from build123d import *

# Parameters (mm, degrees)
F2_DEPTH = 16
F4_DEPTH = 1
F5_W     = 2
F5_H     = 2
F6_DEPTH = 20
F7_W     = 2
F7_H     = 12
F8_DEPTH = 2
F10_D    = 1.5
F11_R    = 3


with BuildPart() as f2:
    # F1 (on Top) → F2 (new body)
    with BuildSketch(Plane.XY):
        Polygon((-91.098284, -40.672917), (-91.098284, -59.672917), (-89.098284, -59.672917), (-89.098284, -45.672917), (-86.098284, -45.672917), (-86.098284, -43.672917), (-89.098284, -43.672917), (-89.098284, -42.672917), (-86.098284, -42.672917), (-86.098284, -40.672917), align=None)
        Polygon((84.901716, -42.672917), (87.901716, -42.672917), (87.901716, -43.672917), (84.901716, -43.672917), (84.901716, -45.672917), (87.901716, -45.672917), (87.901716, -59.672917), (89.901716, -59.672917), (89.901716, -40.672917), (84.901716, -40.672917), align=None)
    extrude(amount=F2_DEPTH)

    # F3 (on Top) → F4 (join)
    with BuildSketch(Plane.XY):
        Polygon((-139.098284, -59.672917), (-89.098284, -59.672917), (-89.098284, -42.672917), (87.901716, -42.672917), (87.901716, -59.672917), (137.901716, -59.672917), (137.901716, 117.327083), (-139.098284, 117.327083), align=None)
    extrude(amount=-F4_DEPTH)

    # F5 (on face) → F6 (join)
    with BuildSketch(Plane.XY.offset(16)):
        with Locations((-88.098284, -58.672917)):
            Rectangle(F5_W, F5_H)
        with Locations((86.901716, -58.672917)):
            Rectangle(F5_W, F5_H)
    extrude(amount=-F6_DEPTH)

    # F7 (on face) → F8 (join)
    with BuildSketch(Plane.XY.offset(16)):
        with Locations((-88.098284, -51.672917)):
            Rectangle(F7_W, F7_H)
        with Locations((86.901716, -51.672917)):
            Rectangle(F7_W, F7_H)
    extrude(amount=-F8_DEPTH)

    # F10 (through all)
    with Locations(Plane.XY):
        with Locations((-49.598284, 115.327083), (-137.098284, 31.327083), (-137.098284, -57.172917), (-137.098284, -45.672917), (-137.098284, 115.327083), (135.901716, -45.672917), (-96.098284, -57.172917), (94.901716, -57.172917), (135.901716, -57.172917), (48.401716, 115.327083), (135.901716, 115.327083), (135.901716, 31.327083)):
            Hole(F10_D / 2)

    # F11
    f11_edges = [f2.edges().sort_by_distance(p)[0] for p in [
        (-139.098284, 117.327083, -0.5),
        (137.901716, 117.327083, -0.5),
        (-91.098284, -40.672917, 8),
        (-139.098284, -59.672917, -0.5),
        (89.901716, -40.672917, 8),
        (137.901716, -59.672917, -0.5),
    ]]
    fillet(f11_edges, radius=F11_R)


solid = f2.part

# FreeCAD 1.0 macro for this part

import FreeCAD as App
import Part
import Sketcher


def edges_at(feature, points):
    """Names of the edges that pass closest to the given points."""
    edges = feature.Shape.Edges
    near = lambda p: min(range(len(edges)), key=lambda i: edges[i].distToShape(Part.Vertex(*p))[0])
    return sorted({f"Edge{near(p) + 1}" for p in points})


def add_polygon(sketch, points):
    """Adds a closed chain of lines whose ends are joined by coincident constraints."""
    first, n = sketch.GeometryCount, len(points)
    for a, b in zip(points, points[1:] + points[:1]):
        sketch.addGeometry(Part.LineSegment(App.Vector(*a, 0), App.Vector(*b, 0)), False)
    for i in range(n):
        sketch.addConstraint(Sketcher.Constraint("Coincident", first + i, 2, first + (i + 1) % n, 1))

doc = App.newDocument("Part")
params = doc.addObject("Spreadsheet::Sheet", "Params")
for row, (alias, value) in enumerate([
    ("sketch1_width", "2 mm"),
    ("sketch1_width2", "3 mm"),
    ("sketch1_height", "19 mm"),
    ("sketch1_height2", "14 mm"),
    ("pad1_length", "16 mm"),
    ("sketch2_width", "50 mm"),
    ("sketch2_width2", "177 mm"),
    ("sketch2_height", "17 mm"),
    ("pad2_length", "1 mm"),
    ("sketch3_width", "2 mm"),
    ("pad3_length", "20 mm"),
    ("sketch4_width", "2 mm"),
    ("sketch4_height", "12 mm"),
    ("pad4_length", "2 mm"),
    ("sketch5_diameter", "1.5 mm"),
    ("hole_diameter", "1.5 mm"),
    ("fillet_radius", "3 mm"),
], start=1):
    params.set(f"A{row}", alias)
    params.set(f"B{row}", "=" + value)
    params.setAlias(f"B{row}", alias)

body = doc.addObject("PartDesign::Body", "Body")
body.AllowCompound = True

sketch1 = doc.addObject("Sketcher::SketchObject", "Sketch")
body.addObject(sketch1)
sketch1.AttachmentSupport = (doc.XY_Plane, [""])
sketch1.MapMode = "FlatFace"
add_polygon(sketch1, [(-91.1, -40.7), (-91.1, -59.7), (-89.1, -59.7), (-89.1, -45.7), (-86.1, -45.7), (-86.1, -43.7), (-89.1, -43.7), (-89.1, -42.7), (-86.1, -42.7), (-86.1, -40.7)])
add_polygon(sketch1, [(84.9, -42.7), (87.9, -42.7), (87.9, -43.7), (84.9, -43.7), (84.9, -45.7), (87.9, -45.7), (87.9, -59.7), (89.9, -59.7), (89.9, -40.7), (84.9, -40.7)])
sketch1.addConstraint([
    Sketcher.Constraint("Vertical", 0),
    Sketcher.Constraint("Horizontal", 1),
    Sketcher.Constraint("Vertical", 2),
    Sketcher.Constraint("Horizontal", 3),
    Sketcher.Constraint("Vertical", 4),
    Sketcher.Constraint("Horizontal", 5),
    Sketcher.Constraint("Vertical", 6),
    Sketcher.Constraint("Horizontal", 7),
    Sketcher.Constraint("Vertical", 8),
    Sketcher.Constraint("Horizontal", 9),
    Sketcher.Constraint("Horizontal", 10),
    Sketcher.Constraint("Vertical", 11),
    Sketcher.Constraint("Horizontal", 12),
    Sketcher.Constraint("Vertical", 13),
    Sketcher.Constraint("Horizontal", 14),
    Sketcher.Constraint("Vertical", 15),
    Sketcher.Constraint("Horizontal", 16),
    Sketcher.Constraint("Vertical", 17),
    Sketcher.Constraint("Horizontal", 18),
    Sketcher.Constraint("Vertical", 19),
    Sketcher.Constraint("Horizontal", 7, 2, 10, 2),
    Sketcher.Constraint("Horizontal", 5, 2, 11, 2),
    Sketcher.Constraint("Horizontal", 3, 2, 13, 2),
    Sketcher.Constraint("Horizontal", 1, 2, 15, 2),
    Sketcher.Constraint("Horizontal", 9, 2, 17, 2),
    Sketcher.Constraint("Vertical", 2, 2, 5, 2),
    Sketcher.Constraint("Vertical", 4, 2, 7, 2),
    Sketcher.Constraint("Vertical", 11, 2, 14, 2),
    Sketcher.Constraint("Vertical", 13, 2, 18, 2),
    Sketcher.Constraint("Equal", 7, 10),
    Sketcher.Constraint("Equal", 1, 16),
    Sketcher.Constraint("Equal", 16, 4),
    Sketcher.Constraint("Equal", 4, 8),
    Sketcher.Constraint("DistanceX", 1, 1, 1, 2, 2.0),
    Sketcher.Constraint("DistanceX", 3, 1, 3, 2, 3.0),
    Sketcher.Constraint("DistanceY", 0, 2, 0, 1, 19.0),
    Sketcher.Constraint("DistanceY", 2, 1, 2, 2, 14.0),
    Sketcher.Constraint("DistanceX", 7, 2, 10, 2, 174.0),
    Sketcher.Constraint("DistanceX", 0, 2, -1, 1, 91.098284),
    Sketcher.Constraint("DistanceY", 0, 2, -1, 1, 59.672917),
])
sketch1.setExpression("Constraints[53]", "Params.sketch1_width")
sketch1.setExpression("Constraints[54]", "Params.sketch1_width2")
sketch1.setExpression("Constraints[55]", "Params.sketch1_height")
sketch1.setExpression("Constraints[56]", "Params.sketch1_height2")
pad1 = doc.addObject("PartDesign::Pad", "Pad")
body.addObject(pad1)
pad1.Profile = sketch1
pad1.setExpression("Length", "Params.pad1_length")

sketch2 = doc.addObject("Sketcher::SketchObject", "Sketch001")
body.addObject(sketch2)
sketch2.AttachmentSupport = (doc.XY_Plane, [""])
sketch2.MapMode = "FlatFace"
add_polygon(sketch2, [(-139, -60), (-89, -60), (-89, -43), (88, -43), (88, -60), (138, -60), (138, 117), (-139, 117)])
sketch2.addConstraint([
    Sketcher.Constraint("Horizontal", 0),
    Sketcher.Constraint("Vertical", 1),
    Sketcher.Constraint("Horizontal", 2),
    Sketcher.Constraint("Vertical", 3),
    Sketcher.Constraint("Horizontal", 4),
    Sketcher.Constraint("Vertical", 5),
    Sketcher.Constraint("Horizontal", 6),
    Sketcher.Constraint("Vertical", 7),
    Sketcher.Constraint("Horizontal", 0, 2, 3, 2),
    Sketcher.Constraint("Equal", 0, 4),
    Sketcher.Constraint("Equal", 2, 5),
    Sketcher.Constraint("DistanceX", 0, 1, 0, 2, 50.0),
    Sketcher.Constraint("DistanceX", 2, 1, 2, 2, 177.0),
    Sketcher.Constraint("DistanceY", 1, 1, 1, 2, 17.0),
    Sketcher.Constraint("DistanceX", 0, 2, -1, 1, 89.098284),
    Sketcher.Constraint("DistanceY", 0, 2, -1, 1, 59.672917),
])
sketch2.setExpression("Constraints[19]", "Params.sketch2_width")
sketch2.setExpression("Constraints[20]", "Params.sketch2_width2")
sketch2.setExpression("Constraints[21]", "Params.sketch2_height")
pad2 = doc.addObject("PartDesign::Pad", "Pad001")
body.addObject(pad2)
pad2.Profile = sketch2
pad2.setExpression("Length", "Params.pad2_length")
pad2.Reversed = True

sketch3 = doc.addObject("Sketcher::SketchObject", "Sketch002")
body.addObject(sketch3)
sketch3.AttachmentSupport = (doc.XY_Plane, [""])
sketch3.MapMode = "FlatFace"
sketch3.AttachmentOffset = App.Placement(App.Vector(0, 0, 16), App.Rotation())
add_polygon(sketch3, [(-89.1, -57.7), (-89.1, -59.7), (-87.1, -59.7), (-87.1, -57.7)])
add_polygon(sketch3, [(85.9, -57.7), (85.9, -59.7), (87.9, -59.7), (87.9, -57.7)])
sketch3.addConstraint([
    Sketcher.Constraint("Vertical", 0),
    Sketcher.Constraint("Horizontal", 1),
    Sketcher.Constraint("Vertical", 2),
    Sketcher.Constraint("Horizontal", 3),
    Sketcher.Constraint("Vertical", 4),
    Sketcher.Constraint("Horizontal", 5),
    Sketcher.Constraint("Vertical", 6),
    Sketcher.Constraint("Horizontal", 7),
    Sketcher.Constraint("Horizontal", 1, 2, 4, 2),
    Sketcher.Constraint("Horizontal", 3, 2, 6, 2),
    Sketcher.Constraint("Equal", 3, 5),
    Sketcher.Constraint("Equal", 7, 0),
    Sketcher.Constraint("DistanceX", 1, 1, 1, 2, 2.0),
    Sketcher.Constraint("DistanceX", 1, 2, 4, 2, 173.0),
    Sketcher.Constraint("DistanceX", 0, 2, -1, 1, 89.098284),
    Sketcher.Constraint("DistanceY", 0, 2, -1, 1, 59.672917),
])
sketch3.setExpression("Constraints[20]", "Params.sketch3_width")
pad3 = doc.addObject("PartDesign::Pad", "Pad002")
body.addObject(pad3)
pad3.Profile = sketch3
pad3.setExpression("Length", "Params.pad3_length")
pad3.Reversed = True

sketch4 = doc.addObject("Sketcher::SketchObject", "Sketch003")
body.addObject(sketch4)
sketch4.AttachmentSupport = (doc.XY_Plane, [""])
sketch4.MapMode = "FlatFace"
sketch4.AttachmentOffset = App.Placement(App.Vector(0, 0, 16), App.Rotation())
add_polygon(sketch4, [(-89.1, -45.7), (-89.1, -57.7), (-87.1, -57.7), (-87.1, -45.7)])
add_polygon(sketch4, [(85.9, -45.7), (85.9, -57.7), (87.9, -57.7), (87.9, -45.7)])
sketch4.addConstraint([
    Sketcher.Constraint("Vertical", 0),
    Sketcher.Constraint("Horizontal", 1),
    Sketcher.Constraint("Vertical", 2),
    Sketcher.Constraint("Horizontal", 3),
    Sketcher.Constraint("Vertical", 4),
    Sketcher.Constraint("Horizontal", 5),
    Sketcher.Constraint("Vertical", 6),
    Sketcher.Constraint("Horizontal", 7),
    Sketcher.Constraint("Horizontal", 1, 2, 4, 2),
    Sketcher.Constraint("Horizontal", 3, 2, 6, 2),
    Sketcher.Constraint("Equal", 3, 5),
    Sketcher.Constraint("DistanceX", 1, 1, 1, 2, 2.0),
    Sketcher.Constraint("DistanceY", 0, 2, 0, 1, 12.0),
    Sketcher.Constraint("DistanceX", 1, 2, 4, 2, 173.0),
    Sketcher.Constraint("DistanceX", 0, 2, -1, 1, 89.098284),
    Sketcher.Constraint("DistanceY", 0, 2, -1, 1, 57.672917),
])
sketch4.setExpression("Constraints[19]", "Params.sketch4_width")
sketch4.setExpression("Constraints[20]", "Params.sketch4_height")
pad4 = doc.addObject("PartDesign::Pad", "Pad003")
body.addObject(pad4)
pad4.Profile = sketch4
pad4.setExpression("Length", "Params.pad4_length")
pad4.Reversed = True

sketch5 = doc.addObject("Sketcher::SketchObject", "Sketch004")
body.addObject(sketch5)
sketch5.AttachmentSupport = (doc.XY_Plane, [""])
sketch5.MapMode = "FlatFace"
sketch5.addGeometry([
    Part.Circle(App.Vector(-49.6, 115.3, 0), App.Vector(0, 0, 1), 0.8),
    Part.Circle(App.Vector(-137.1, 31.3, 0), App.Vector(0, 0, 1), 0.8),
    Part.Circle(App.Vector(-137.1, -57.2, 0), App.Vector(0, 0, 1), 0.8),
    Part.Circle(App.Vector(-137.1, -45.7, 0), App.Vector(0, 0, 1), 0.8),
    Part.Circle(App.Vector(-137.1, 115.3, 0), App.Vector(0, 0, 1), 0.8),
    Part.Circle(App.Vector(135.9, -45.7, 0), App.Vector(0, 0, 1), 0.8),
    Part.Circle(App.Vector(-96.1, -57.2, 0), App.Vector(0, 0, 1), 0.8),
    Part.Circle(App.Vector(94.9, -57.2, 0), App.Vector(0, 0, 1), 0.8),
    Part.Circle(App.Vector(135.9, -57.2, 0), App.Vector(0, 0, 1), 0.8),
    Part.Circle(App.Vector(48.4, 115.3, 0), App.Vector(0, 0, 1), 0.8),
    Part.Circle(App.Vector(135.9, 115.3, 0), App.Vector(0, 0, 1), 0.8),
    Part.Circle(App.Vector(135.9, 31.3, 0), App.Vector(0, 0, 1), 0.8),
], False)
sketch5.addConstraint([
    Sketcher.Constraint("Equal", 0, 1),
    Sketcher.Constraint("Equal", 1, 2),
    Sketcher.Constraint("Equal", 2, 3),
    Sketcher.Constraint("Equal", 3, 4),
    Sketcher.Constraint("Equal", 4, 5),
    Sketcher.Constraint("Equal", 5, 6),
    Sketcher.Constraint("Equal", 6, 7),
    Sketcher.Constraint("Equal", 7, 8),
    Sketcher.Constraint("Equal", 8, 9),
    Sketcher.Constraint("Equal", 9, 10),
    Sketcher.Constraint("Equal", 10, 11),
    Sketcher.Constraint("Horizontal", 0, 3, 4, 3),
    Sketcher.Constraint("Horizontal", 3, 3, 5, 3),
    Sketcher.Constraint("Horizontal", 2, 3, 6, 3),
    Sketcher.Constraint("Horizontal", 6, 3, 7, 3),
    Sketcher.Constraint("Horizontal", 7, 3, 8, 3),
    Sketcher.Constraint("Horizontal", 4, 3, 9, 3),
    Sketcher.Constraint("Horizontal", 9, 3, 10, 3),
    Sketcher.Constraint("Horizontal", 1, 3, 11, 3),
    Sketcher.Constraint("Vertical", 1, 3, 2, 3),
    Sketcher.Constraint("Vertical", 2, 3, 3, 3),
    Sketcher.Constraint("Vertical", 3, 3, 4, 3),
    Sketcher.Constraint("Vertical", 5, 3, 8, 3),
    Sketcher.Constraint("Vertical", 8, 3, 10, 3),
    Sketcher.Constraint("Vertical", 10, 3, 11, 3),
    Sketcher.Constraint("Diameter", 0, 1.5),
    Sketcher.Constraint("DistanceY", 1, 3, 0, 3, 84.0),
    Sketcher.Constraint("DistanceY", 3, 3, 1, 3, 77.0),
    Sketcher.Constraint("DistanceX", 3, 3, 5, 3, 273.0),
    Sketcher.Constraint("DistanceX", 2, 3, 6, 3, 41.0),
    Sketcher.Constraint("DistanceX", 7, 3, 5, 3, 41.0),
    Sketcher.Constraint("DistanceX", 0, 3, 9, 3, 98.0),
    Sketcher.Constraint("DistanceX", 1, 3, 0, 3, 87.5),
    Sketcher.Constraint("DistanceY", 2, 3, 1, 3, 88.5),
    Sketcher.Constraint("DistanceX", 0, 3, -1, 1, 49.598284),
    Sketcher.Constraint("DistanceY", -1, 1, 0, 3, 115.327083),
])
sketch5.setExpression("Constraints[25]", "Params.sketch5_diameter")
doc.recompute()
hole = doc.addObject("PartDesign::Hole", "Hole")
body.addObject(hole)
hole.Profile = sketch5
hole.ThreadType = "None"
hole.setExpression("Diameter", "Params.hole_diameter")
hole.DepthType = "ThroughAll"
doc.recompute()

fillet = doc.addObject("PartDesign::Fillet", "Fillet")
body.addObject(fillet)
fillet.Base = (hole, edges_at(hole, [
    (-139.098, 117.327, -0.5),
    (137.902, 117.327, -0.5),
    (-91.098, -40.673, 8),
    (-139.098, -59.673, -0.5),
    (89.902, -40.673, 8),
    (137.902, -59.673, -0.5),
]))
fillet.setExpression("Radius", "Params.fillet_radius")

doc.recompute()
